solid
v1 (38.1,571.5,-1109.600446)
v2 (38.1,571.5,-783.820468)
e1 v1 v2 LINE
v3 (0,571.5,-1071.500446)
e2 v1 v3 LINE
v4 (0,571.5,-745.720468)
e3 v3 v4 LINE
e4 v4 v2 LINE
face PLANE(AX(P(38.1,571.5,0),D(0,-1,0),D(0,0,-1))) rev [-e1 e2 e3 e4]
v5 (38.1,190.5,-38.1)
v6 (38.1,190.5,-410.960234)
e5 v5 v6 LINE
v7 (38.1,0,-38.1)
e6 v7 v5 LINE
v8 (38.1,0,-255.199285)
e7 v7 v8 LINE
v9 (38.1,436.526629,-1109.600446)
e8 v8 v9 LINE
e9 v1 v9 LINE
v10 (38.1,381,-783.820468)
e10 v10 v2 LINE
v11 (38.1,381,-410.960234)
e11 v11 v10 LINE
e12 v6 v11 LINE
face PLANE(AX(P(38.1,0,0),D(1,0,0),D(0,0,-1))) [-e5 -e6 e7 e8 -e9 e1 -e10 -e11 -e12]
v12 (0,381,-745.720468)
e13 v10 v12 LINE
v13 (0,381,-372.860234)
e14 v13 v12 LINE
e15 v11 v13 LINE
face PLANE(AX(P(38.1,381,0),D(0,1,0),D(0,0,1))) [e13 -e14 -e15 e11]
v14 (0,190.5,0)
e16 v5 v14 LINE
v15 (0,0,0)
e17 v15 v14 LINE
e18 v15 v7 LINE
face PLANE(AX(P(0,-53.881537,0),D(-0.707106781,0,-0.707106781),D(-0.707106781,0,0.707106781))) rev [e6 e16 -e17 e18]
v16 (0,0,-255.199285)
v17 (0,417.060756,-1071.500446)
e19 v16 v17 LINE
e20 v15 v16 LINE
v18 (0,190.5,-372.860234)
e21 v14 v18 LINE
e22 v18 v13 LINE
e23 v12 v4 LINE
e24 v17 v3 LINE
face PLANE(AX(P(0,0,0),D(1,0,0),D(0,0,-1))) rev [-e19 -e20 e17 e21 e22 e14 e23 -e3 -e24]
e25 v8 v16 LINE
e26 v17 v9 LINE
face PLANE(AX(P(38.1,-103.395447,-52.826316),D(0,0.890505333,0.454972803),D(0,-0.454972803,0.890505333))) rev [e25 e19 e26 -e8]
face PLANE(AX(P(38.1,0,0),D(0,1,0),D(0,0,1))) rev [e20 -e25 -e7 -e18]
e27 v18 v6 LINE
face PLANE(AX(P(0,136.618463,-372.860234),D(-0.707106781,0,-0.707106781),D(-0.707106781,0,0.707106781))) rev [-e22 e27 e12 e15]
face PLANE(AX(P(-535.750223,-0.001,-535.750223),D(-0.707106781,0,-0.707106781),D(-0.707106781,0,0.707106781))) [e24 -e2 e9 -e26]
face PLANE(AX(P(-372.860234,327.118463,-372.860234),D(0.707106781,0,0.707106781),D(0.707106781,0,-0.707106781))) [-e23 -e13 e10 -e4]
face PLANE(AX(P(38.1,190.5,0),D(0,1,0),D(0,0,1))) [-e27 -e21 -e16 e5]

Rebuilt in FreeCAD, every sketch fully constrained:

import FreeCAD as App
import Part
import Sketcher

V = App.Vector
Q = App.Units.Quantity


def add_polygon(sketch, points):
    """Adds a closed chain of lines whose ends are joined by coincident constraints."""
    first, n = sketch.GeometryCount, len(points)
    for a, b in zip(points, points[1:] + points[:1]):
        sketch.addGeometry(Part.LineSegment(App.Vector(*a, 0), App.Vector(*b, 0)), False)
    for i in range(n):
        sketch.addConstraint(Sketcher.Constraint("Coincident", first + i, 2, first + (i + 1) % n, 1))

doc = App.newDocument("Part")
body = doc.addObject("PartDesign::Body", "Body")

sketch1 = doc.addObject("Sketcher::SketchObject", "Sketch")
body.addObject(sketch1)
sketch1.AttachmentSupport = (doc.YZ_Plane, [""])
sketch1.MapMode = "FlatFace"
add_polygon(sketch1, [(190, 0), (0, 0), (0, -255), (437, -1110), (572, -1110), (572, -746), (381, -746), (381, -373), (190, -373)])
sketch1.addConstraint(Sketcher.Constraint("Horizontal", 0))
sketch1.addConstraint(Sketcher.Constraint("Vertical", 1))
sketch1.addConstraint(Sketcher.Constraint("Horizontal", 3))
sketch1.addConstraint(Sketcher.Constraint("Vertical", 4))
sketch1.addConstraint(Sketcher.Constraint("Horizontal", 5))
sketch1.addConstraint(Sketcher.Constraint("Vertical", 6))
sketch1.addConstraint(Sketcher.Constraint("Horizontal", 7))
sketch1.addConstraint(Sketcher.Constraint("Vertical", 8))
sketch1.addConstraint(Sketcher.Constraint("Coincident", 0, 2, -1, 1))
sketch1.addConstraint(Sketcher.Constraint("Equal", 0, 5))
sketch1.addConstraint(Sketcher.Constraint("Equal", 5, 7))
sketch1.addConstraint(Sketcher.Constraint("Equal", 6, 8))
sketch1.addConstraint(Sketcher.Constraint("DistanceX", 0, 2, 0, 1, Q("7.5 in")))
sketch1.addConstraint(Sketcher.Constraint("DistanceX", 3, 1, 3, 2, 134.973371))
sketch1.addConstraint(Sketcher.Constraint("DistanceY", 4, 1, 4, 2, 363.879978))
sketch1.addConstraint(Sketcher.Constraint("DistanceY", 1, 2, 1, 1, 255.199285))
sketch1.addConstraint(Sketcher.Constraint("DistanceY", 6, 1, 6, 2, 372.860234))
pad1 = doc.addObject("PartDesign::Pad", "Pad")
body.addObject(pad1)
pad1.Profile = sketch1
pad1.Length = Q("1.5 in")

sketch2 = doc.addObject("Sketcher::SketchObject", "Sketch001")
body.addObject(sketch2)
sketch2.AttachmentSupport = (doc.XZ_Plane, [""])
sketch2.MapMode = "FlatFace"
sketch2.AttachmentOffset = App.Placement(V(0, 0, -15 * 25.4), App.Rotation())
add_polygon(sketch2, [(38, -411), (0, -373), (38, -373)])
sketch2.addConstraint(Sketcher.Constraint("Horizontal", 1))
sketch2.addConstraint(Sketcher.Constraint("Vertical", 2))
sketch2.addConstraint(Sketcher.Constraint("PointOnObject", 0, 2, -2))
sketch2.addConstraint(Sketcher.Constraint("Equal", 1, 2))
sketch2.addConstraint(Sketcher.Constraint("DistanceX", 1, 1, 1, 2, Q("1.5 in")))
sketch2.addConstraint(Sketcher.Constraint("DistanceY", 0, 2, -1, 1, 372.860234))
pocket1 = doc.addObject("PartDesign::Pocket", "Pocket")
body.addObject(pocket1)
pocket1.Profile = sketch2
pocket1.Length = Q("7.5 in")
pocket1.Reversed = True

sketch3 = doc.addObject("Sketcher::SketchObject", "Sketch002")
body.addObject(sketch3)
sketch3.AttachmentSupport = (doc.XZ_Plane, [""])
sketch3.MapMode = "FlatFace"
sketch3.AttachmentOffset = App.Placement(V(0, 0, -7.5 * 25.4), App.Rotation())
add_polygon(sketch3, [(38, -38), (0, 0), (38, 0)])
sketch3.addConstraint(Sketcher.Constraint("Horizontal", 1))
sketch3.addConstraint(Sketcher.Constraint("Vertical", 2))
sketch3.addConstraint(Sketcher.Constraint("Coincident", 0, 2, -1, 1))
sketch3.addConstraint(Sketcher.Constraint("Equal", 1, 2))
sketch3.addConstraint(Sketcher.Constraint("DistanceX", 1, 1, 1, 2, Q("1.5 in")))
pocket2 = doc.addObject("PartDesign::Pocket", "Pocket001")
body.addObject(pocket2)
pocket2.Profile = sketch3
pocket2.Length = Q("7.5 in")
pocket2.Reversed = True

sketch4 = doc.addObject("Sketcher::SketchObject", "Sketch003")
body.addObject(sketch4)
sketch4.AttachmentSupport = (doc.XZ_Plane, [""])
sketch4.MapMode = "FlatFace"
sketch4.AttachmentOffset = App.Placement(V(0, 0, -22.5 * 25.4), App.Rotation())
add_polygon(sketch4, [(0, -1072), (38, -1110), (0, -1110)])
sketch4.addConstraint(Sketcher.Constraint("Horizontal", 1))
sketch4.addConstraint(Sketcher.Constraint("Vertical", 2))
sketch4.addConstraint(Sketcher.Constraint("PointOnObject", 1, 2, -2))
sketch4.addConstraint(Sketcher.Constraint("Equal", 1, 2))
sketch4.addConstraint(Sketcher.Constraint("DistanceX", 1, 2, 1, 1, Q("1.5 in")))
sketch4.addConstraint(Sketcher.Constraint("DistanceY", 0, 2, -1, 1, 1109.600446))
pocket3 = doc.addObject("PartDesign::Pocket", "Pocket002")
body.addObject(pocket3)
pocket3.Profile = sketch4
pocket3.Type = "UpToFirst"
pocket3.Reversed = True

sketch5 = doc.addObject("Sketcher::SketchObject", "Sketch004")
body.addObject(sketch5)
sketch5.AttachmentSupport = (doc.XZ_Plane, [""])
sketch5.MapMode = "FlatFace"
sketch5.AttachmentOffset = App.Placement(V(0, 0, -22.5 * 25.4), App.Rotation())
add_polygon(sketch5, [(38, -746), (38, -784), (0, -746)])
sketch5.addConstraint(Sketcher.Constraint("Vertical", 0))
sketch5.addConstraint(Sketcher.Constraint("Horizontal", 2))
sketch5.addConstraint(Sketcher.Constraint("PointOnObject", 1, 2, -2))
sketch5.addConstraint(Sketcher.Constraint("Equal", 2, 0))
sketch5.addConstraint(Sketcher.Constraint("DistanceX", 2, 1, 2, 2, Q("1.5 in")))
sketch5.addConstraint(Sketcher.Constraint("DistanceY", 0, 2, -1, 1, 783.820468))
pocket4 = doc.addObject("PartDesign::Pocket", "Pocket003")
body.addObject(pocket4)
pocket4.Profile = sketch5
pocket4.Length = Q("7.5 in")
pocket4.Reversed = True

doc.recompute()
